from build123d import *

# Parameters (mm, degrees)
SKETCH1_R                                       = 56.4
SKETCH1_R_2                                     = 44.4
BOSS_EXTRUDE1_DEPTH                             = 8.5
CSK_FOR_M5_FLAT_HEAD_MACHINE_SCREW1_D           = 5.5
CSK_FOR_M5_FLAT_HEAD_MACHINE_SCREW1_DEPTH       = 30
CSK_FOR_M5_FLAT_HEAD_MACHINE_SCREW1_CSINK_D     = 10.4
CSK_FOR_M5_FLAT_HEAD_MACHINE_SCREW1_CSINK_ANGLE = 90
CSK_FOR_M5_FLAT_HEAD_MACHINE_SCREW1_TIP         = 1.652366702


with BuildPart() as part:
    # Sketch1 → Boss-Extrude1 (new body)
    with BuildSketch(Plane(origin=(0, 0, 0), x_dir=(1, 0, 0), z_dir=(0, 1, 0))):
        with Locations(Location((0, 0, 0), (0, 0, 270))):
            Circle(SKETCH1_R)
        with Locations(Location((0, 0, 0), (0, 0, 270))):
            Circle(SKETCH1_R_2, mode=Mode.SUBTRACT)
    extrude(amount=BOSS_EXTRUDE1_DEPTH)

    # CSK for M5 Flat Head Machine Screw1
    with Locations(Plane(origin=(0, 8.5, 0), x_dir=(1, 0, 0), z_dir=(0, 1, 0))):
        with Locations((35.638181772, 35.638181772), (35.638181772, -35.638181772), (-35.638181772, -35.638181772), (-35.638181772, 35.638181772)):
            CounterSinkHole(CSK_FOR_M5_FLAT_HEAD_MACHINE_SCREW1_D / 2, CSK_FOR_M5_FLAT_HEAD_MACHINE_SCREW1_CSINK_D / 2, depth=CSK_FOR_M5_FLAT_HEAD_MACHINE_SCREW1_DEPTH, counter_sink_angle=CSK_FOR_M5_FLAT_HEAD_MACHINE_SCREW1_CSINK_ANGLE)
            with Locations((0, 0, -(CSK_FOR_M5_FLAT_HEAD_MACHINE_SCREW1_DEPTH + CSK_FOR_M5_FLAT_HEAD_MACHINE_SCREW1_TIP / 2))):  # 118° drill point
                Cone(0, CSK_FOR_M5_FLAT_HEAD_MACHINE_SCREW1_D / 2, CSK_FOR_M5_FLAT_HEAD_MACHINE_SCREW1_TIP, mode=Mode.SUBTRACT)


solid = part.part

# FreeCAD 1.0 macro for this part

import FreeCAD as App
import Part
import Sketcher

V = App.Vector

doc = App.newDocument("Part")
body = doc.addObject("PartDesign::Body", "Body")

# Sketch on XZ plane
sketch1 = body.newObject("Sketcher::SketchObject", "Sketch")
sketch1.AttachmentSupport = (doc.getObject("XZ_Plane"), [""])
sketch1.MapMode = "FlatFace"
sketch1.addGeometry(Part.Circle(V(0, 0, 0), V(0, 0, 1), 56), False)
sketch1.addGeometry(Part.Circle(V(0, 0, 0), V(0, 0, 1), 44), False)
sketch1.addConstraint(Sketcher.Constraint("Coincident", 0, 3, -1, 1))
sketch1.addConstraint(Sketcher.Constraint("Coincident", 1, 3, -1, 1))
sketch1.addConstraint(Sketcher.Constraint("Diameter", 0, 112.8))
sketch1.addConstraint(Sketcher.Constraint("Diameter", 1, 88.8))
pad1 = body.newObject("PartDesign::Pad", "Pad")
pad1.Profile = sketch1
pad1.Length = 8.5
pad1.Reversed = True

# Sketch on XZ plane
sketch2 = body.newObject("Sketcher::SketchObject", "Sketch001")
sketch2.AttachmentSupport = (doc.getObject("XZ_Plane"), [""])
sketch2.MapMode = "FlatFace"
sketch2.AttachmentOffset = App.Placement(V(0, 0, -8.5), App.Rotation())
sketch2.addGeometry(Part.Circle(V(35.6, -35.6, 0), V(0, 0, 1), 2.8), False)
sketch2.addGeometry(Part.Circle(V(35.6, 35.6, 0), V(0, 0, 1), 2.8), False)
sketch2.addGeometry(Part.Circle(V(-35.6, 35.6, 0), V(0, 0, 1), 2.8), False)
sketch2.addGeometry(Part.Circle(V(-35.6, -35.6, 0), V(0, 0, 1), 2.8), False)
sketch2.addConstraint(Sketcher.Constraint("Equal", 0, 1))
sketch2.addConstraint(Sketcher.Constraint("Equal", 1, 2))
sketch2.addConstraint(Sketcher.Constraint("Equal", 2, 3))
sketch2.addConstraint(Sketcher.Constraint("Symmetric", 0, 3, 2, 3, -1, 1))
sketch2.addConstraint(Sketcher.Constraint("Symmetric", 1, 3, 3, 3, -1, 1))
sketch2.addConstraint(Sketcher.Constraint("Symmetric", 1, 3, 2, 3, -2))
sketch2.addConstraint(Sketcher.Constraint("Diameter", 0, 5.5))
sketch2.addConstraint(Sketcher.Constraint("DistanceX", -1, 1, 0, 3, 35.638182))
sketch2.addConstraint(Sketcher.Constraint("DistanceY", 0, 3, -1, 1, 35.638182))
doc.recompute()
hole = body.newObject("PartDesign::Hole", "Hole")
hole.Profile = sketch2
hole.ThreadType = "None"
hole.Diameter = 5.5
hole.DepthType = "Dimension"
hole.Depth = 30
hole.DrillPoint = "Angled"
hole.DrillPointAngle = 118
hole.HoleCutType = "Countersink"
hole.HoleCutDiameter = 10.4
hole.HoleCutCountersinkAngle = 90
hole.Reversed = True

doc.recompute()
